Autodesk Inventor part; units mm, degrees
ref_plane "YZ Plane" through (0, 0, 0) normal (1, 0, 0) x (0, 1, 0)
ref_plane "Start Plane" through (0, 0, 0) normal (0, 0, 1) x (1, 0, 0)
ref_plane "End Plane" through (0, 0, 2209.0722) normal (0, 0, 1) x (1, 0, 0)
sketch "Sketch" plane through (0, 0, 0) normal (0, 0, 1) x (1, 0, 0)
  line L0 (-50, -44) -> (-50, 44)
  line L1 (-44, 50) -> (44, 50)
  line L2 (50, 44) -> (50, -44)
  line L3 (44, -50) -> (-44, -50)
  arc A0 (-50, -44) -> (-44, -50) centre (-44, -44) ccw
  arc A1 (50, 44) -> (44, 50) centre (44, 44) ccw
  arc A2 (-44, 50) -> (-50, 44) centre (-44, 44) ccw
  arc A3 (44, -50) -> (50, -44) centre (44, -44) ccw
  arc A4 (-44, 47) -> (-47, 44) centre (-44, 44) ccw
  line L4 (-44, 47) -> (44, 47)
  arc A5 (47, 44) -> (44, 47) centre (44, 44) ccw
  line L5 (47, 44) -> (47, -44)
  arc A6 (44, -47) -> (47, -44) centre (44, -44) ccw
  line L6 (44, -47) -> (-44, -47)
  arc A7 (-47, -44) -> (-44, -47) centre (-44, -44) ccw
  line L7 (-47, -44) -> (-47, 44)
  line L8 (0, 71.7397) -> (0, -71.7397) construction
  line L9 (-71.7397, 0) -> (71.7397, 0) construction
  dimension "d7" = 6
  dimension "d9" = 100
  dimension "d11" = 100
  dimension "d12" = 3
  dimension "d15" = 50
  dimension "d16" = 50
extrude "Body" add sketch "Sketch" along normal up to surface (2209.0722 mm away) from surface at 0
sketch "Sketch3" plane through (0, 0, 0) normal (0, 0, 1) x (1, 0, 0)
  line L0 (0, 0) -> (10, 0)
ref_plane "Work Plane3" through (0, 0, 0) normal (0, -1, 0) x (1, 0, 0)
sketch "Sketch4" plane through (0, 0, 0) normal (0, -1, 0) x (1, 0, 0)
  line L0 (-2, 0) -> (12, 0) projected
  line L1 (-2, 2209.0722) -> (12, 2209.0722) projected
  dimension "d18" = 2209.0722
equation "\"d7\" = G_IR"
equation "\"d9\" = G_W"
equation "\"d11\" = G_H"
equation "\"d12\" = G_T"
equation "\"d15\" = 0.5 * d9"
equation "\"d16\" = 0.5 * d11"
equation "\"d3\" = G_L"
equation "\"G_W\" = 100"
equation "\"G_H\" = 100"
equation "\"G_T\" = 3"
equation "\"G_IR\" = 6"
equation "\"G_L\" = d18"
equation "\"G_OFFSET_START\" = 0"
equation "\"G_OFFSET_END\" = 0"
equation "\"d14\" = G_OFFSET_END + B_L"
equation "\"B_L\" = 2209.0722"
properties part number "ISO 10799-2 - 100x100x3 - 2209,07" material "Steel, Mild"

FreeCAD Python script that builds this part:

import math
import FreeCAD as App
import Part
import Sketcher
from FreeCAD import Vector
Q = App.Units.Quantity

doc = App.newDocument("Part")
body = doc.addObject("PartDesign::Body", "Body")

# Sketch on XY plane
sketch1 = doc.addObject("Sketcher::SketchObject", "Sketch")
body.addObject(sketch1)
sketch1.AttachmentSupport = (doc.XY_Plane, [""])
sketch1.MapMode = "FlatFace"
sketch1.addGeometry([
    Part.LineSegment(Vector(-50, 44, 0), Vector(-50, -44, 0)),  # 0
    Part.ArcOfCircle(Part.Circle(Vector(-44, -44, 0), Vector(0, 0, 1), 6), math.radians(180), math.radians(270)),  # 1
    Part.LineSegment(Vector(-44, -50, 0), Vector(44, -50, 0)),  # 2
    Part.ArcOfCircle(Part.Circle(Vector(44, -44, 0), Vector(0, 0, 1), 6), math.radians(-90), math.radians(0)),  # 3
    Part.LineSegment(Vector(50, -44, 0), Vector(50, 44, 0)),  # 4
    Part.ArcOfCircle(Part.Circle(Vector(44, 44, 0), Vector(0, 0, 1), 6), math.radians(0), math.radians(90)),  # 5
    Part.LineSegment(Vector(44, 50, 0), Vector(-44, 50, 0)),  # 6
    Part.ArcOfCircle(Part.Circle(Vector(-44, 44, 0), Vector(0, 0, 1), 6), math.radians(90), math.radians(180)),  # 7
    Part.ArcOfCircle(Part.Circle(Vector(-44, 44, 0), Vector(0, 0, 1), 3), math.radians(90), math.radians(180)),  # 8
    Part.LineSegment(Vector(-44, 47, 0), Vector(44, 47, 0)),  # 9
    Part.ArcOfCircle(Part.Circle(Vector(44, 44, 0), Vector(0, 0, 1), 3), math.radians(0), math.radians(90)),  # 10
    Part.LineSegment(Vector(47, 44, 0), Vector(47, -44, 0)),  # 11
    Part.ArcOfCircle(Part.Circle(Vector(44, -44, 0), Vector(0, 0, 1), 3), math.radians(-90), math.radians(0)),  # 12
    Part.LineSegment(Vector(44, -47, 0), Vector(-44, -47, 0)),  # 13
    Part.ArcOfCircle(Part.Circle(Vector(-44, -44, 0), Vector(0, 0, 1), 3), math.radians(180), math.radians(270)),  # 14
    Part.LineSegment(Vector(-47, -44, 0), Vector(-47, 44, 0)),  # 15
], False)
sketch1.addConstraint([
    Sketcher.Constraint("Tangent", 0, 2, 1, 1),
    Sketcher.Constraint("Tangent", 1, 2, 2, 1),
    Sketcher.Constraint("Tangent", 2, 2, 3, 1),
    Sketcher.Constraint("Tangent", 3, 2, 4, 1),
    Sketcher.Constraint("Tangent", 4, 2, 5, 1),
    Sketcher.Constraint("Tangent", 5, 2, 6, 1),
    Sketcher.Constraint("Tangent", 6, 2, 7, 1),
    Sketcher.Constraint("Tangent", 7, 2, 0, 1),
    Sketcher.Constraint("Tangent", 8, 1, 9, 1),
    Sketcher.Constraint("Tangent", 9, 2, 10, 2),
    Sketcher.Constraint("Tangent", 10, 1, 11, 1),
    Sketcher.Constraint("Tangent", 11, 2, 12, 2),
    Sketcher.Constraint("Tangent", 12, 1, 13, 1),
    Sketcher.Constraint("Tangent", 13, 2, 14, 2),
    Sketcher.Constraint("Tangent", 14, 1, 15, 1),
    Sketcher.Constraint("Tangent", 15, 2, 8, 2),
    Sketcher.Constraint("Vertical", 0),
    Sketcher.Constraint("Horizontal", 2),
    Sketcher.Constraint("Vertical", 4),
    Sketcher.Constraint("Horizontal", 6),
    Sketcher.Constraint("Horizontal", 9),
    Sketcher.Constraint("Vertical", 11),
    Sketcher.Constraint("Horizontal", 13),
    Sketcher.Constraint("Vertical", 15),
    Sketcher.Constraint("Coincident", 8, 3, 7, 3),
    Sketcher.Constraint("Coincident", 10, 3, 5, 3),
    Sketcher.Constraint("Coincident", 12, 3, 3, 3),
    Sketcher.Constraint("Equal", 1, 3),
    Sketcher.Constraint("Equal", 3, 5),
    Sketcher.Constraint("Equal", 5, 7),
    Sketcher.Constraint("Equal", 12, 14),
    Sketcher.Constraint("Symmetric", 1, 3, 5, 3, -1, 1),
    Sketcher.Constraint("Equal", 13, 0),
    Sketcher.Constraint("Radius", 1, Q("6 mm")),
    Sketcher.Constraint("Radius", 8, Q("3 mm")),
    Sketcher.Constraint("DistanceX", 0, 2, -1, 1, Q("50 mm")),
])
pad1 = doc.addObject("PartDesign::Pad", "Pad")
body.addObject(pad1)
pad1.Profile = sketch1
pad1.Length = 2209.0722

doc.recompute()
